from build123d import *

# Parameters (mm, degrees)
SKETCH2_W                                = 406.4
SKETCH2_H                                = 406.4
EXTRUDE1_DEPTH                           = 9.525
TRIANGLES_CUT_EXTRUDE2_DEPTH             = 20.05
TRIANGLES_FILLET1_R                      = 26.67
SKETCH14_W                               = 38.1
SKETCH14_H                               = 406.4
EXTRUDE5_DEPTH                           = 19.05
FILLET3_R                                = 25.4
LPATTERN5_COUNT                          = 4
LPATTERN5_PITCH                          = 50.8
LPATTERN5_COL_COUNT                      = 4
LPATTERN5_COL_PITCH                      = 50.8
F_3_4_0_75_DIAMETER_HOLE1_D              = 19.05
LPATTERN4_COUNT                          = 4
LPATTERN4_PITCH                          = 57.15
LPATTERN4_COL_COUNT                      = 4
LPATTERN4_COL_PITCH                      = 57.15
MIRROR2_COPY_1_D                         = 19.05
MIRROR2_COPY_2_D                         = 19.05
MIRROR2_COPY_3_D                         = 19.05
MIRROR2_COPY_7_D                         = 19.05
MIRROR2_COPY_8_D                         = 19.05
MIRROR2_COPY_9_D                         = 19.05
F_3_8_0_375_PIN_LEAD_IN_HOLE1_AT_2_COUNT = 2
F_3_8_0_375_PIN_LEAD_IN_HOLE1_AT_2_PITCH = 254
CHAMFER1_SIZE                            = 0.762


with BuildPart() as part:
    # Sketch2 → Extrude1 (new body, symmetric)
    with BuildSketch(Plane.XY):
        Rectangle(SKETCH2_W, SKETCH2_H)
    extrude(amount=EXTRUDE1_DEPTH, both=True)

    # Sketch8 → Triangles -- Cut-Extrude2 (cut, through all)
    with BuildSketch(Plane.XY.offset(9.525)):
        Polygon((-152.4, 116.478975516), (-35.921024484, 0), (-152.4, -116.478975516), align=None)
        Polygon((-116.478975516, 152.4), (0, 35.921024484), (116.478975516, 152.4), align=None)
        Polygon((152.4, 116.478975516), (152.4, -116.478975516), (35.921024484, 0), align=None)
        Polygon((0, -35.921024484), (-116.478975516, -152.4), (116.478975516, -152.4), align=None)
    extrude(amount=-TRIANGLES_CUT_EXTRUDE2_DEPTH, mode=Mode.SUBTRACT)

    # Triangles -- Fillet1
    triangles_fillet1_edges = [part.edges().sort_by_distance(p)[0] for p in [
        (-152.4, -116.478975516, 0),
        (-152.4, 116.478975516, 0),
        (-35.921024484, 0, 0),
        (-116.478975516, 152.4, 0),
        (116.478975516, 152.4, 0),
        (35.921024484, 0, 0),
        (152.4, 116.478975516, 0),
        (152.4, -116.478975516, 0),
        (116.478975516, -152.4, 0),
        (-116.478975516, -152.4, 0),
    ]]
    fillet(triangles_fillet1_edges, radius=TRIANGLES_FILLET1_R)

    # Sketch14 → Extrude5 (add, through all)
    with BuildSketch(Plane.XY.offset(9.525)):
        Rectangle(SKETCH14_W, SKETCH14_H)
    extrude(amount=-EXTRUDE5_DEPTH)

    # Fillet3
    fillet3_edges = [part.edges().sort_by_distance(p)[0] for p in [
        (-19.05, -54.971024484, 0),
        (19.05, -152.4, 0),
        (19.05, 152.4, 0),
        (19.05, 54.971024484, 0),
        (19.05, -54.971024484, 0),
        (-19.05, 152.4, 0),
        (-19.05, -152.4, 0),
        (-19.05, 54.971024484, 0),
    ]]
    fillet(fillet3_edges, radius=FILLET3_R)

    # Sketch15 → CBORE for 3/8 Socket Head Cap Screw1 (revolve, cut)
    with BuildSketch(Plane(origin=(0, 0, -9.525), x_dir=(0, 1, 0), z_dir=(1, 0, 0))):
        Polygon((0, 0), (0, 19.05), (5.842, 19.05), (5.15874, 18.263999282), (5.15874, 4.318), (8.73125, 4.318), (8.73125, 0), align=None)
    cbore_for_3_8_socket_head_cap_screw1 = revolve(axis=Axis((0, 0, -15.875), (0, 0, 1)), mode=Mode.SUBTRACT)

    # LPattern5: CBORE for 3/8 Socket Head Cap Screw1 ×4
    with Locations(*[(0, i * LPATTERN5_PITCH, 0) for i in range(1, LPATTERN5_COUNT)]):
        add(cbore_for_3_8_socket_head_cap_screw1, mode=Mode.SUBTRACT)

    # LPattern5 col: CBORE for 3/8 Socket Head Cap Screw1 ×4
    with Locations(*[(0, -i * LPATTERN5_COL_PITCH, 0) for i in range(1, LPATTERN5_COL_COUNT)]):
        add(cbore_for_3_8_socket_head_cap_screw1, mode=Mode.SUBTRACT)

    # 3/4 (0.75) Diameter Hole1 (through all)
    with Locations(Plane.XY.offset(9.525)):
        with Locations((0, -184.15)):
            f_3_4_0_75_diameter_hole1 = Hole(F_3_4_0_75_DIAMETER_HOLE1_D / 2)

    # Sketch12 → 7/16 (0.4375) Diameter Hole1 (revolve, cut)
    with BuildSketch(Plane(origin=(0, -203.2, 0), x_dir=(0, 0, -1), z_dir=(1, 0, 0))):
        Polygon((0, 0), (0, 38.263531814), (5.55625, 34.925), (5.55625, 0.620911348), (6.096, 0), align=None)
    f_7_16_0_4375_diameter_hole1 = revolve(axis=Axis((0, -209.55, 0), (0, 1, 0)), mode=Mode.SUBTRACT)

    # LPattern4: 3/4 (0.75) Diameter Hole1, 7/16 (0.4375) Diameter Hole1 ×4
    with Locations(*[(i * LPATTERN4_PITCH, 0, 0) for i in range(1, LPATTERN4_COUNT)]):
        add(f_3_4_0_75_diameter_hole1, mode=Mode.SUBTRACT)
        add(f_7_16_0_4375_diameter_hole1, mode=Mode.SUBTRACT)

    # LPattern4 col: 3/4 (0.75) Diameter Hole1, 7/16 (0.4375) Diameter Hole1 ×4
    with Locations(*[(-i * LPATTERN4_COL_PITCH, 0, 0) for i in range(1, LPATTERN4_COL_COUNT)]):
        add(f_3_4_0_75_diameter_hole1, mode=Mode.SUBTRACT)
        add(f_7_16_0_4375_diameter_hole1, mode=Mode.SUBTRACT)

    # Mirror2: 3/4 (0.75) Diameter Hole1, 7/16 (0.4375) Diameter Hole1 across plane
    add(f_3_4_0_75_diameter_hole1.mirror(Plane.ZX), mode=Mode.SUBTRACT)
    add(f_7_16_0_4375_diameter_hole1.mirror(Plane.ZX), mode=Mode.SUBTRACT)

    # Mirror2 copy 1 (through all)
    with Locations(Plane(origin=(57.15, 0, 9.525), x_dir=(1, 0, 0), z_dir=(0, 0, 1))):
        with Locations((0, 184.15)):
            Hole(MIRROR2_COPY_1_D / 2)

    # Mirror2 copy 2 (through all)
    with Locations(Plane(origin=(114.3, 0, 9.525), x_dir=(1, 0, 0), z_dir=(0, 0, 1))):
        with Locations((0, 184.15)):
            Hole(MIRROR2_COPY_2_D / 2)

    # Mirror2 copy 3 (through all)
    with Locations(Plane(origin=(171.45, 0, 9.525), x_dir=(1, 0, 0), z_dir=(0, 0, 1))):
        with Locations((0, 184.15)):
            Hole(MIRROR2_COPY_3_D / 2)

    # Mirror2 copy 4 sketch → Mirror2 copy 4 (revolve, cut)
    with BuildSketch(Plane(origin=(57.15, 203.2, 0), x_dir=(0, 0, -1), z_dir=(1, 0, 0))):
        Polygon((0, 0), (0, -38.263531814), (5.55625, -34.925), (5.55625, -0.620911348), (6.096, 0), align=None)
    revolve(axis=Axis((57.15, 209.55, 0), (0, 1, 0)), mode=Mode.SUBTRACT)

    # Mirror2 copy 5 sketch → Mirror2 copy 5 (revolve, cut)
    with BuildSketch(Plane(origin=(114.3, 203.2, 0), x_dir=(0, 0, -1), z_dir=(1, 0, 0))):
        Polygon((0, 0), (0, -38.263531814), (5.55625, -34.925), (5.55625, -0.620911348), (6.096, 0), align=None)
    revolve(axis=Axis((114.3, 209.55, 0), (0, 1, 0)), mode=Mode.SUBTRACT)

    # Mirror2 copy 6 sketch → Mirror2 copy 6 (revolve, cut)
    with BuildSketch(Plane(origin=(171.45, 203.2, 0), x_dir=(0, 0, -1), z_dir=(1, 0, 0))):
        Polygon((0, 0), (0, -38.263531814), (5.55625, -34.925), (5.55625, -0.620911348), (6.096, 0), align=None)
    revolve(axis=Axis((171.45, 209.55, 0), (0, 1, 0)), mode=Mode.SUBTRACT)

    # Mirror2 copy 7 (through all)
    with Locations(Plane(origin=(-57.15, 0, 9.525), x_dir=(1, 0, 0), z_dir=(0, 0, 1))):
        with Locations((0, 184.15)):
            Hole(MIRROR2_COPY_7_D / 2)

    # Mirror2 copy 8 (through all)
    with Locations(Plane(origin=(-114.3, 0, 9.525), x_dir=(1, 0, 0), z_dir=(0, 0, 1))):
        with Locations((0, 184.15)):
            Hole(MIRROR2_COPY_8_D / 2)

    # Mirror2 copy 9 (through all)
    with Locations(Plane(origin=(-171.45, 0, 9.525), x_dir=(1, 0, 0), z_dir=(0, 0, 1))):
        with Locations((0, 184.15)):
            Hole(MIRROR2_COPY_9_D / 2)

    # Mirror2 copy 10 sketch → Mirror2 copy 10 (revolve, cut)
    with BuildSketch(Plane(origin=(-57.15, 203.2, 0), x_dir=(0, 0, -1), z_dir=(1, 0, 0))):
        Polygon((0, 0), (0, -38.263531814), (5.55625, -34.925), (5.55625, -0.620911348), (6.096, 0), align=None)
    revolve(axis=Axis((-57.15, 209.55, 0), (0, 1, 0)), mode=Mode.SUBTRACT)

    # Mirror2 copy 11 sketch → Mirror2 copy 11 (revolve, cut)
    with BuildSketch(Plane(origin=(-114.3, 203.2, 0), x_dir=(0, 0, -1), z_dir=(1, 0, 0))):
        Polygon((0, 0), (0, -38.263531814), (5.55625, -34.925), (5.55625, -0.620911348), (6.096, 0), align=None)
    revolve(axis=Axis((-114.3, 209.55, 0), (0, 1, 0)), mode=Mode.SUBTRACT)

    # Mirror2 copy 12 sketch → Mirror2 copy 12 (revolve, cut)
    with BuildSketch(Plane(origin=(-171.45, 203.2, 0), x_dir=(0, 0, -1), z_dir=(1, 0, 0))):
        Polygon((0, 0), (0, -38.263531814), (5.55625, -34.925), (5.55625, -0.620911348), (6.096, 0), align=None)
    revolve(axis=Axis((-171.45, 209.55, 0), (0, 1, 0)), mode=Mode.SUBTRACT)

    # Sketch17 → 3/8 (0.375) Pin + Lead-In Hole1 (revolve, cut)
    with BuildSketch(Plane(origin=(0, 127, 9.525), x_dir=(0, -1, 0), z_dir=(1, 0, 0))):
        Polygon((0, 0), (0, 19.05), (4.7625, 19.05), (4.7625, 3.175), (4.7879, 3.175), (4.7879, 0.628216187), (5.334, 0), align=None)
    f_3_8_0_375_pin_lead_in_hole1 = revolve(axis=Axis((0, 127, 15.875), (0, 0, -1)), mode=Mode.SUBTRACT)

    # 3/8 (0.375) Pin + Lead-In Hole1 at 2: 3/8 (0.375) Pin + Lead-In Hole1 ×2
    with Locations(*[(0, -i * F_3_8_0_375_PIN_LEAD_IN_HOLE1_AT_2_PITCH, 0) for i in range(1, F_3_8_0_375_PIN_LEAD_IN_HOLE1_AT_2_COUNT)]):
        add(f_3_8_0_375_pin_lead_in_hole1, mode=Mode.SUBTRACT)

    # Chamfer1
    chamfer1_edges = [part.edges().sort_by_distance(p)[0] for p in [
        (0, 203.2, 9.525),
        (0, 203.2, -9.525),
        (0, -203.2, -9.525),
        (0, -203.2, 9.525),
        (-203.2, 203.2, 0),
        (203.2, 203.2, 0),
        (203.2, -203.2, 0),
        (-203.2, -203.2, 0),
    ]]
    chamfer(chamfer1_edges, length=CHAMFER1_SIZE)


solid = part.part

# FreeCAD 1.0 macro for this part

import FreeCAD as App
import Part
import Sketcher

V = App.Vector
Q = App.Units.Quantity


def edges_at(feature, points):
    """Names of the edges that pass closest to the given points."""
    edges = feature.Shape.Edges
    near = lambda p: min(range(len(edges)), key=lambda i: edges[i].distToShape(Part.Vertex(*p))[0])
    return sorted({f"Edge{near(p) + 1}" for p in points})


def add_polygon(sketch, points):
    """Adds a closed chain of lines whose ends are joined by coincident constraints."""
    first, n = sketch.GeometryCount, len(points)
    for a, b in zip(points, points[1:] + points[:1]):
        sketch.addGeometry(Part.LineSegment(App.Vector(*a, 0), App.Vector(*b, 0)), False)
    for i in range(n):
        sketch.addConstraint(Sketcher.Constraint("Coincident", first + i, 2, first + (i + 1) % n, 1))

doc = App.newDocument("Part")
body = doc.addObject("PartDesign::Body", "Body")

sketch1 = body.newObject("Sketcher::SketchObject", "Sketch")
sketch1.AttachmentSupport = (doc.getObject("XY_Plane"), [""])
sketch1.MapMode = "FlatFace"
add_polygon(sketch1, [(-203, 203), (-203, -203), (203, -203), (203, 203)])
sketch1.addConstraint(Sketcher.Constraint("Vertical", 0))
sketch1.addConstraint(Sketcher.Constraint("Horizontal", 1))
sketch1.addConstraint(Sketcher.Constraint("Vertical", 2))
sketch1.addConstraint(Sketcher.Constraint("Horizontal", 3))
sketch1.addConstraint(Sketcher.Constraint("Symmetric", 0, 2, 2, 2, -1, 1))
sketch1.addConstraint(Sketcher.Constraint("Equal", 3, 0))
sketch1.addConstraint(Sketcher.Constraint("DistanceX", 1, 1, 1, 2, Q("16 in")))
pad1 = body.newObject("PartDesign::Pad", "Pad")
pad1.Profile = sketch1
pad1.Length = Q("0.75 in")
pad1.Midplane = True

sketch2 = body.newObject("Sketcher::SketchObject", "Sketch001")
sketch2.AttachmentSupport = (doc.getObject("XY_Plane"), [""])
sketch2.MapMode = "FlatFace"
sketch2.AttachmentOffset = App.Placement(V(0, 0, 0.375 * 25.4), App.Rotation())
add_polygon(sketch2, [(-36, 0), (-152, 116), (-152, -116)])
add_polygon(sketch2, [(-116, 152), (0, 36), (116, 152)])
add_polygon(sketch2, [(152, -116), (152, 116), (36, 0)])
add_polygon(sketch2, [(0, -36), (-116, -152), (116, -152)])
sketch2.addConstraint(Sketcher.Constraint("Vertical", 1))
sketch2.addConstraint(Sketcher.Constraint("Horizontal", 5))
sketch2.addConstraint(Sketcher.Constraint("Vertical", 6))
sketch2.addConstraint(Sketcher.Constraint("Horizontal", 10))
sketch2.addConstraint(Sketcher.Constraint("Symmetric", 1, 2, 6, 2, -1, 1))
sketch2.addConstraint(Sketcher.Constraint("Symmetric", 2, 2, 7, 2, -1, 1))
sketch2.addConstraint(Sketcher.Constraint("Symmetric", 4, 2, 9, 2, -1, 1))
sketch2.addConstraint(Sketcher.Constraint("Symmetric", 3, 2, 11, 2, -1, 1))
sketch2.addConstraint(Sketcher.Constraint("PointOnObject", 2, 2, -1))
sketch2.addConstraint(Sketcher.Constraint("PointOnObject", 3, 2, -2))
sketch2.addConstraint(Sketcher.Constraint("Perpendicular", 0, 2))
sketch2.addConstraint(Sketcher.Constraint("Perpendicular", 2, 3))
sketch2.addConstraint(Sketcher.Constraint("Perpendicular", 3, 4))
sketch2.addConstraint(Sketcher.Constraint("Perpendicular", 7, 8))
sketch2.addConstraint(Sketcher.Constraint("Perpendicular", 9, 11))
sketch2.addConstraint(Sketcher.Constraint("Horizontal", 0, 2, 6, 2))
sketch2.addConstraint(Sketcher.Constraint("Equal", 10, 1))
sketch2.addConstraint(Sketcher.Constraint("DistanceX", 0, 2, -1, 1, Q("6 in")))
sketch2.addConstraint(Sketcher.Constraint("DistanceY", -1, 1, 4, 2, Q("6 in")))
sketch2.addConstraint(Sketcher.Constraint("DistanceX", 5, 2, 5, 1, Q("232.957951 mm")))
pocket1 = body.newObject("PartDesign::Pocket", "Pocket")
pocket1.Profile = sketch2
pocket1.Type = "ThroughAll"
doc.recompute()

fillet = body.newObject("PartDesign::Fillet", "Fillet")
fillet.Base = (pocket1, edges_at(pocket1, [
    (-152.4, -116.479, 0),
    (-152.4, 116.479, 0),
    (-35.921, 0, 0),
    (-116.479, 152.4, 0),
    (116.479, 152.4, 0),
    (35.921, 0, 0),
    (152.4, 116.479, 0),
    (152.4, -116.479, 0),
    (116.479, -152.4, 0),
    (-116.479, -152.4, 0),
]))
fillet.Radius = Q("1.05 in")

sketch3 = body.newObject("Sketcher::SketchObject", "Sketch002")
sketch3.AttachmentSupport = (doc.getObject("XY_Plane"), [""])
sketch3.MapMode = "FlatFace"
sketch3.AttachmentOffset = App.Placement(V(0, 0, 0.375 * 25.4), App.Rotation())
add_polygon(sketch3, [(-19, 203), (-19, -203), (19, -203), (19, 203)])
sketch3.addConstraint(Sketcher.Constraint("Vertical", 0))
sketch3.addConstraint(Sketcher.Constraint("Horizontal", 1))
sketch3.addConstraint(Sketcher.Constraint("Vertical", 2))
sketch3.addConstraint(Sketcher.Constraint("Horizontal", 3))
sketch3.addConstraint(Sketcher.Constraint("Symmetric", 0, 2, 2, 2, -1, 1))
sketch3.addConstraint(Sketcher.Constraint("DistanceY", 0, 2, 0, 1, Q("16 in")))
sketch3.addConstraint(Sketcher.Constraint("DistanceX", 1, 1, 1, 2, Q("1.5 in")))
pad2 = body.newObject("PartDesign::Pad", "Pad001")
pad2.Profile = sketch3
pad2.Type = "UpToLast"
pad2.Reversed = True
doc.recompute()

fillet2 = body.newObject("PartDesign::Fillet", "Fillet001")
fillet2.Base = (pad2, edges_at(pad2, [
    (-19.05, -54.971, 0),
    (19.05, -152.4, 0),
    (19.05, 152.4, 0),
    (19.05, 54.971, 0),
    (19.05, -54.971, 0),
    (-19.05, 152.4, 0),
    (-19.05, -152.4, 0),
    (-19.05, 54.971, 0),
]))
fillet2.Radius = Q("1 in")

sketch4 = body.newObject("Sketcher::SketchObject", "Sketch003")
sketch4.AttachmentSupport = (doc.getObject("YZ_Plane"), [""])
sketch4.MapMode = "FlatFace"
add_polygon(sketch4, [(0, 9.5), (0, -9.5), (8.7, -9.5), (8.7, -5.2), (5.2, -5.2), (5.2, 8.7), (5.8, 9.5)])
sketch4.addConstraint(Sketcher.Constraint("Vertical", 0))
sketch4.addConstraint(Sketcher.Constraint("Horizontal", 1))
sketch4.addConstraint(Sketcher.Constraint("Vertical", 2))
sketch4.addConstraint(Sketcher.Constraint("Horizontal", 3))
sketch4.addConstraint(Sketcher.Constraint("Vertical", 4))
sketch4.addConstraint(Sketcher.Constraint("Horizontal", 6))
sketch4.addConstraint(Sketcher.Constraint("Symmetric", 0, 2, 6, 2, -1, 1))
sketch4.addConstraint(Sketcher.Constraint("Angle", 5, Q("49 deg")))
sketch4.addConstraint(Sketcher.Constraint("DistanceX", 6, 2, 6, 1, Q("0.23 in")))
sketch4.addConstraint(Sketcher.Constraint("DistanceY", 0, 2, 0, 1, Q("0.75 in")))
sketch4.addConstraint(Sketcher.Constraint("DistanceY", 2, 1, 2, 2, Q("0.17 in")))
sketch4.addConstraint(Sketcher.Constraint("DistanceX", 1, 1, 1, 2, Q("0.34375 in")))
sketch4.addConstraint(Sketcher.Constraint("DistanceY", 4, 1, 4, 2, Q("13.945999 mm")))
groove = body.newObject("PartDesign::Groove", "Groove")
groove.Profile = sketch4
groove.ReferenceAxis = (sketch4, ["V_Axis"])
groove.Angle = 360
doc.recompute()

linearpattern = body.newObject("PartDesign::LinearPattern", "LinearPattern")
linearpattern.Originals = [groove]
linearpattern.Direction = (doc.getObject("Y_Axis"), [""])
linearpattern.Mode = "offset"
linearpattern.Offset = Q("2 in")
linearpattern.Occurrences = 4
body.Tip = linearpattern
doc.recompute()

linearpattern2 = body.newObject("PartDesign::LinearPattern", "LinearPattern001")
linearpattern2.Originals = [groove]
linearpattern2.Direction = (doc.getObject("Y_Axis"), [""])
linearpattern2.Mode = "offset"
linearpattern2.Offset = Q("2 in")
linearpattern2.Occurrences = 4
linearpattern2.Reversed = True
body.Tip = linearpattern2

sketch5 = body.newObject("Sketcher::SketchObject", "Sketch004")
sketch5.AttachmentSupport = (doc.getObject("XY_Plane"), [""])
sketch5.MapMode = "FlatFace"
sketch5.AttachmentOffset = App.Placement(V(0, 0, 0.375 * 25.4), App.Rotation())
sketch5.addGeometry(Part.Circle(V(0, -184, 0), V(0, 0, 1), 10), False)
sketch5.addConstraint(Sketcher.Constraint("PointOnObject", 0, 3, -2))
sketch5.addConstraint(Sketcher.Constraint("Diameter", 0, Q("0.75 in")))
sketch5.addConstraint(Sketcher.Constraint("DistanceY", 0, 3, -1, 1, Q("7.25 in")))
doc.recompute()
hole = body.newObject("PartDesign::Hole", "Hole")
hole.Profile = sketch5
hole.ThreadType = "None"
hole.Diameter = Q("0.75 in")
hole.DepthType = "ThroughAll"

sketch6 = body.newObject("Sketcher::SketchObject", "Sketch005")
sketch6.AttachmentSupport = (doc.getObject("YZ_Plane"), [""])
sketch6.MapMode = "FlatFace"
add_polygon(sketch6, [(-164.9, 0), (-203.2, 0), (-203.2, -6.1), (-202.6, -5.6), (-168.3, -5.6)])
sketch6.addConstraint(Sketcher.Constraint("Horizontal", 0))
sketch6.addConstraint(Sketcher.Constraint("Vertical", 1))
sketch6.addConstraint(Sketcher.Constraint("Horizontal", 3))
sketch6.addConstraint(Sketcher.Constraint("PointOnObject", 0, 2, -1))
sketch6.addConstraint(Sketcher.Constraint("DistanceX", 0, 2, -1, 1, Q("8 in")))
sketch6.addConstraint(Sketcher.Constraint("Angle", 2, Q("41 deg")))
sketch6.addConstraint(Sketcher.Constraint("Angle", 4, Q("59 deg")))
sketch6.addConstraint(Sketcher.Constraint("DistanceY", 1, 2, 1, 1, Q("0.24 in")))
sketch6.addConstraint(Sketcher.Constraint("DistanceY", 2, 2, -1, 1, Q("0.21875 in")))
sketch6.addConstraint(Sketcher.Constraint("DistanceX", 3, 2, -1, 1, Q("6.625 in")))
groove2 = body.newObject("PartDesign::Groove", "Groove001")
groove2.Profile = sketch6
groove2.ReferenceAxis = (sketch6, ["H_Axis"])
groove2.Angle = 360
doc.recompute()

linearpattern3 = body.newObject("PartDesign::LinearPattern", "LinearPattern002")
linearpattern3.Originals = [hole, groove2]
linearpattern3.Direction = (doc.getObject("X_Axis"), [""])
linearpattern3.Mode = "offset"
linearpattern3.Offset = Q("2.25 in")
linearpattern3.Occurrences = 4
body.Tip = linearpattern3
doc.recompute()

linearpattern4 = body.newObject("PartDesign::LinearPattern", "LinearPattern003")
linearpattern4.Originals = [hole, groove2]
linearpattern4.Direction = (doc.getObject("X_Axis"), [""])
linearpattern4.Mode = "offset"
linearpattern4.Offset = Q("2.25 in")
linearpattern4.Occurrences = 4
linearpattern4.Reversed = True
body.Tip = linearpattern4
doc.recompute()

mirrored = body.newObject("PartDesign::Mirrored", "Mirrored")
mirrored.Originals = [hole, groove2]
mirrored.MirrorPlane = (doc.getObject("XZ_Plane"), [""])
body.Tip = mirrored

sketch7 = body.newObject("Sketcher::SketchObject", "Sketch006")
sketch7.AttachmentSupport = (doc.getObject("XY_Plane"), [""])
sketch7.MapMode = "FlatFace"
sketch7.AttachmentOffset = App.Placement(V(0, 0, 0.375 * 25.4), App.Rotation())
sketch7.addGeometry(Part.Circle(V(57, 184, 0), V(0, 0, 1), 10), False)
sketch7.addConstraint(Sketcher.Constraint("Diameter", 0, Q("0.75 in")))
sketch7.addConstraint(Sketcher.Constraint("DistanceX", -1, 1, 0, 3, Q("2.25 in")))
sketch7.addConstraint(Sketcher.Constraint("DistanceY", -1, 1, 0, 3, Q("7.25 in")))
doc.recompute()
hole2 = body.newObject("PartDesign::Hole", "Hole001")
hole2.Profile = sketch7
hole2.ThreadType = "None"
hole2.Diameter = Q("0.75 in")
hole2.DepthType = "ThroughAll"

sketch8 = body.newObject("Sketcher::SketchObject", "Sketch007")
sketch8.AttachmentSupport = (doc.getObject("XY_Plane"), [""])
sketch8.MapMode = "FlatFace"
sketch8.AttachmentOffset = App.Placement(V(0, 0, 0.375 * 25.4), App.Rotation())
sketch8.addGeometry(Part.Circle(V(114, 184, 0), V(0, 0, 1), 10), False)
sketch8.addConstraint(Sketcher.Constraint("Diameter", 0, Q("0.75 in")))
sketch8.addConstraint(Sketcher.Constraint("DistanceX", -1, 1, 0, 3, Q("4.5 in")))
sketch8.addConstraint(Sketcher.Constraint("DistanceY", -1, 1, 0, 3, Q("7.25 in")))
doc.recompute()
hole3 = body.newObject("PartDesign::Hole", "Hole002")
hole3.Profile = sketch8
hole3.ThreadType = "None"
hole3.Diameter = Q("0.75 in")
hole3.DepthType = "ThroughAll"

sketch9 = body.newObject("Sketcher::SketchObject", "Sketch008")
sketch9.AttachmentSupport = (doc.getObject("XY_Plane"), [""])
sketch9.MapMode = "FlatFace"
sketch9.AttachmentOffset = App.Placement(V(0, 0, 0.375 * 25.4), App.Rotation())
sketch9.addGeometry(Part.Circle(V(171, 184, 0), V(0, 0, 1), 10), False)
sketch9.addConstraint(Sketcher.Constraint("Diameter", 0, Q("0.75 in")))
sketch9.addConstraint(Sketcher.Constraint("DistanceX", -1, 1, 0, 3, Q("6.75 in")))
sketch9.addConstraint(Sketcher.Constraint("DistanceY", -1, 1, 0, 3, Q("7.25 in")))
doc.recompute()
hole4 = body.newObject("PartDesign::Hole", "Hole003")
hole4.Profile = sketch9
hole4.ThreadType = "None"
hole4.Diameter = Q("0.75 in")
hole4.DepthType = "ThroughAll"

sketch10 = body.newObject("Sketcher::SketchObject", "Sketch009")
sketch10.AttachmentSupport = (doc.getObject("YZ_Plane"), [""])
sketch10.MapMode = "FlatFace"
sketch10.AttachmentOffset = App.Placement(V(0, 0, 2.25 * 25.4), App.Rotation())
add_polygon(sketch10, [(203.2, 0), (164.9, 0), (168.3, -5.6), (202.6, -5.6), (203.2, -6.1)])
sketch10.addConstraint(Sketcher.Constraint("Horizontal", 0))
sketch10.addConstraint(Sketcher.Constraint("Horizontal", 2))
sketch10.addConstraint(Sketcher.Constraint("Vertical", 4))
sketch10.addConstraint(Sketcher.Constraint("PointOnObject", 0, 2, -1))
sketch10.addConstraint(Sketcher.Constraint("DistanceX", -1, 1, 3, 2, Q("8 in")))
sketch10.addConstraint(Sketcher.Constraint("Angle", 1, Q("-59 deg")))
sketch10.addConstraint(Sketcher.Constraint("Angle", 3, Q("-41 deg")))
sketch10.addConstraint(Sketcher.Constraint("DistanceY", 4, 1, 4, 2, Q("0.24 in")))
sketch10.addConstraint(Sketcher.Constraint("DistanceX", -1, 1, 1, 2, Q("6.625 in")))
sketch10.addConstraint(Sketcher.Constraint("DistanceY", 1, 2, -1, 1, Q("0.21875 in")))
groove3 = body.newObject("PartDesign::Groove", "Groove002")
groove3.Profile = sketch10
groove3.ReferenceAxis = (sketch10, ["H_Axis"])
groove3.Angle = 360

sketch11 = body.newObject("Sketcher::SketchObject", "Sketch010")
sketch11.AttachmentSupport = (doc.getObject("YZ_Plane"), [""])
sketch11.MapMode = "FlatFace"
sketch11.AttachmentOffset = App.Placement(V(0, 0, 4.5 * 25.4), App.Rotation())
add_polygon(sketch11, [(203.2, 0), (164.9, 0), (168.3, -5.6), (202.6, -5.6), (203.2, -6.1)])
sketch11.addConstraint(Sketcher.Constraint("Horizontal", 0))
sketch11.addConstraint(Sketcher.Constraint("Horizontal", 2))
sketch11.addConstraint(Sketcher.Constraint("Vertical", 4))
sketch11.addConstraint(Sketcher.Constraint("PointOnObject", 0, 2, -1))
sketch11.addConstraint(Sketcher.Constraint("DistanceX", -1, 1, 3, 2, Q("8 in")))
sketch11.addConstraint(Sketcher.Constraint("Angle", 1, Q("-59 deg")))
sketch11.addConstraint(Sketcher.Constraint("Angle", 3, Q("-41 deg")))
sketch11.addConstraint(Sketcher.Constraint("DistanceY", 4, 1, 4, 2, Q("0.24 in")))
sketch11.addConstraint(Sketcher.Constraint("DistanceX", -1, 1, 1, 2, Q("6.625 in")))
sketch11.addConstraint(Sketcher.Constraint("DistanceY", 1, 2, -1, 1, Q("0.21875 in")))
groove4 = body.newObject("PartDesign::Groove", "Groove003")
groove4.Profile = sketch11
groove4.ReferenceAxis = (sketch11, ["H_Axis"])
groove4.Angle = 360

sketch12 = body.newObject("Sketcher::SketchObject", "Sketch011")
sketch12.AttachmentSupport = (doc.getObject("YZ_Plane"), [""])
sketch12.MapMode = "FlatFace"
sketch12.AttachmentOffset = App.Placement(V(0, 0, 6.75 * 25.4), App.Rotation())
add_polygon(sketch12, [(203.2, 0), (164.9, 0), (168.3, -5.6), (202.6, -5.6), (203.2, -6.1)])
sketch12.addConstraint(Sketcher.Constraint("Horizontal", 0))
sketch12.addConstraint(Sketcher.Constraint("Horizontal", 2))
sketch12.addConstraint(Sketcher.Constraint("Vertical", 4))
sketch12.addConstraint(Sketcher.Constraint("PointOnObject", 0, 2, -1))
sketch12.addConstraint(Sketcher.Constraint("DistanceX", -1, 1, 3, 2, Q("8 in")))
sketch12.addConstraint(Sketcher.Constraint("Angle", 1, Q("-59 deg")))
sketch12.addConstraint(Sketcher.Constraint("Angle", 3, Q("-41 deg")))
sketch12.addConstraint(Sketcher.Constraint("DistanceY", 4, 1, 4, 2, Q("0.24 in")))
sketch12.addConstraint(Sketcher.Constraint("DistanceX", -1, 1, 1, 2, Q("6.625 in")))
sketch12.addConstraint(Sketcher.Constraint("DistanceY", 1, 2, -1, 1, Q("0.21875 in")))
groove5 = body.newObject("PartDesign::Groove", "Groove004")
groove5.Profile = sketch12
groove5.ReferenceAxis = (sketch12, ["H_Axis"])
groove5.Angle = 360

sketch13 = body.newObject("Sketcher::SketchObject", "Sketch012")
sketch13.AttachmentSupport = (doc.getObject("XY_Plane"), [""])
sketch13.MapMode = "FlatFace"
sketch13.AttachmentOffset = App.Placement(V(0, 0, 0.375 * 25.4), App.Rotation())
sketch13.addGeometry(Part.Circle(V(-57, 184, 0), V(0, 0, 1), 10), False)
sketch13.addConstraint(Sketcher.Constraint("Diameter", 0, Q("0.75 in")))
sketch13.addConstraint(Sketcher.Constraint("DistanceX", 0, 3, -1, 1, Q("2.25 in")))
sketch13.addConstraint(Sketcher.Constraint("DistanceY", -1, 1, 0, 3, Q("7.25 in")))
doc.recompute()
hole5 = body.newObject("PartDesign::Hole", "Hole004")
hole5.Profile = sketch13
hole5.ThreadType = "None"
hole5.Diameter = Q("0.75 in")
hole5.DepthType = "ThroughAll"

sketch14 = body.newObject("Sketcher::SketchObject", "Sketch013")
sketch14.AttachmentSupport = (doc.getObject("XY_Plane"), [""])
sketch14.MapMode = "FlatFace"
sketch14.AttachmentOffset = App.Placement(V(0, 0, 0.375 * 25.4), App.Rotation())
sketch14.addGeometry(Part.Circle(V(-114, 184, 0), V(0, 0, 1), 10), False)
sketch14.addConstraint(Sketcher.Constraint("Diameter", 0, Q("0.75 in")))
sketch14.addConstraint(Sketcher.Constraint("DistanceX", 0, 3, -1, 1, Q("4.5 in")))
sketch14.addConstraint(Sketcher.Constraint("DistanceY", -1, 1, 0, 3, Q("7.25 in")))
doc.recompute()
hole6 = body.newObject("PartDesign::Hole", "Hole005")
hole6.Profile = sketch14
hole6.ThreadType = "None"
hole6.Diameter = Q("0.75 in")
hole6.DepthType = "ThroughAll"

sketch15 = body.newObject("Sketcher::SketchObject", "Sketch014")
sketch15.AttachmentSupport = (doc.getObject("XY_Plane"), [""])
sketch15.MapMode = "FlatFace"
sketch15.AttachmentOffset = App.Placement(V(0, 0, 0.375 * 25.4), App.Rotation())
sketch15.addGeometry(Part.Circle(V(-171, 184, 0), V(0, 0, 1), 10), False)
sketch15.addConstraint(Sketcher.Constraint("Diameter", 0, Q("0.75 in")))
sketch15.addConstraint(Sketcher.Constraint("DistanceX", 0, 3, -1, 1, Q("6.75 in")))
sketch15.addConstraint(Sketcher.Constraint("DistanceY", -1, 1, 0, 3, Q("7.25 in")))
doc.recompute()
hole7 = body.newObject("PartDesign::Hole", "Hole006")
hole7.Profile = sketch15
hole7.ThreadType = "None"
hole7.Diameter = Q("0.75 in")
hole7.DepthType = "ThroughAll"

sketch16 = body.newObject("Sketcher::SketchObject", "Sketch015")
sketch16.AttachmentSupport = (doc.getObject("YZ_Plane"), [""])
sketch16.MapMode = "FlatFace"
sketch16.AttachmentOffset = App.Placement(V(0, 0, -2.25 * 25.4), App.Rotation())
add_polygon(sketch16, [(203.2, 0), (164.9, 0), (168.3, -5.6), (202.6, -5.6), (203.2, -6.1)])
sketch16.addConstraint(Sketcher.Constraint("Horizontal", 0))
sketch16.addConstraint(Sketcher.Constraint("Horizontal", 2))
sketch16.addConstraint(Sketcher.Constraint("Vertical", 4))
sketch16.addConstraint(Sketcher.Constraint("PointOnObject", 0, 2, -1))
sketch16.addConstraint(Sketcher.Constraint("DistanceX", -1, 1, 3, 2, Q("8 in")))
sketch16.addConstraint(Sketcher.Constraint("Angle", 1, Q("-59 deg")))
sketch16.addConstraint(Sketcher.Constraint("Angle", 3, Q("-41 deg")))
sketch16.addConstraint(Sketcher.Constraint("DistanceY", 4, 1, 4, 2, Q("0.24 in")))
sketch16.addConstraint(Sketcher.Constraint("DistanceX", -1, 1, 1, 2, Q("6.625 in")))
sketch16.addConstraint(Sketcher.Constraint("DistanceY", 1, 2, -1, 1, Q("0.21875 in")))
groove6 = body.newObject("PartDesign::Groove", "Groove005")
groove6.Profile = sketch16
groove6.ReferenceAxis = (sketch16, ["H_Axis"])
groove6.Angle = 360

sketch17 = body.newObject("Sketcher::SketchObject", "Sketch016")
sketch17.AttachmentSupport = (doc.getObject("YZ_Plane"), [""])
sketch17.MapMode = "FlatFace"
sketch17.AttachmentOffset = App.Placement(V(0, 0, -4.5 * 25.4), App.Rotation())
add_polygon(sketch17, [(203.2, 0), (164.9, 0), (168.3, -5.6), (202.6, -5.6), (203.2, -6.1)])
sketch17.addConstraint(Sketcher.Constraint("Horizontal", 0))
sketch17.addConstraint(Sketcher.Constraint("Horizontal", 2))
sketch17.addConstraint(Sketcher.Constraint("Vertical", 4))
sketch17.addConstraint(Sketcher.Constraint("PointOnObject", 0, 2, -1))
sketch17.addConstraint(Sketcher.Constraint("DistanceX", -1, 1, 3, 2, Q("8 in")))
sketch17.addConstraint(Sketcher.Constraint("Angle", 1, Q("-59 deg")))
sketch17.addConstraint(Sketcher.Constraint("Angle", 3, Q("-41 deg")))
sketch17.addConstraint(Sketcher.Constraint("DistanceY", 4, 1, 4, 2, Q("0.24 in")))
sketch17.addConstraint(Sketcher.Constraint("DistanceX", -1, 1, 1, 2, Q("6.625 in")))
sketch17.addConstraint(Sketcher.Constraint("DistanceY", 1, 2, -1, 1, Q("0.21875 in")))
groove7 = body.newObject("PartDesign::Groove", "Groove006")
groove7.Profile = sketch17
groove7.ReferenceAxis = (sketch17, ["H_Axis"])
groove7.Angle = 360

sketch18 = body.newObject("Sketcher::SketchObject", "Sketch017")
sketch18.AttachmentSupport = (doc.getObject("YZ_Plane"), [""])
sketch18.MapMode = "FlatFace"
sketch18.AttachmentOffset = App.Placement(V(0, 0, -6.75 * 25.4), App.Rotation())
add_polygon(sketch18, [(203.2, 0), (164.9, 0), (168.3, -5.6), (202.6, -5.6), (203.2, -6.1)])
sketch18.addConstraint(Sketcher.Constraint("Horizontal", 0))
sketch18.addConstraint(Sketcher.Constraint("Horizontal", 2))
sketch18.addConstraint(Sketcher.Constraint("Vertical", 4))
sketch18.addConstraint(Sketcher.Constraint("PointOnObject", 0, 2, -1))
sketch18.addConstraint(Sketcher.Constraint("DistanceX", -1, 1, 3, 2, Q("8 in")))
sketch18.addConstraint(Sketcher.Constraint("Angle", 1, Q("-59 deg")))
sketch18.addConstraint(Sketcher.Constraint("Angle", 3, Q("-41 deg")))
sketch18.addConstraint(Sketcher.Constraint("DistanceY", 4, 1, 4, 2, Q("0.24 in")))
sketch18.addConstraint(Sketcher.Constraint("DistanceX", -1, 1, 1, 2, Q("6.625 in")))
sketch18.addConstraint(Sketcher.Constraint("DistanceY", 1, 2, -1, 1, Q("0.21875 in")))
groove8 = body.newObject("PartDesign::Groove", "Groove007")
groove8.Profile = sketch18
groove8.ReferenceAxis = (sketch18, ["H_Axis"])
groove8.Angle = 360

sketch19 = body.newObject("Sketcher::SketchObject", "Sketch018")
sketch19.AttachmentSupport = (doc.getObject("YZ_Plane"), [""])
sketch19.MapMode = "FlatFace"
add_polygon(sketch19, [(127, -9.525), (127, 9.525), (121.666, 9.525), (122.212, 8.897), (122.212, 6.35), (122.237, 6.35), (122.237, -9.525)])
sketch19.addGeometry(Part.LineSegment(V(127, 9.525, 0), V(127, -9.525, 0)), True)
sketch19.addConstraint(Sketcher.Constraint("Vertical", 0))
sketch19.addConstraint(Sketcher.Constraint("Horizontal", 1))
sketch19.addConstraint(Sketcher.Constraint("Vertical", 3))
sketch19.addConstraint(Sketcher.Constraint("Horizontal", 4))
sketch19.addConstraint(Sketcher.Constraint("Vertical", 5))
sketch19.addConstraint(Sketcher.Constraint("Horizontal", 6))
sketch19.addConstraint(Sketcher.Constraint("Vertical", 7))
sketch19.addConstraint(Sketcher.Constraint("Coincident", 7, 1, 0, 2))
sketch19.addConstraint(Sketcher.Constraint("Horizontal", 5, 2, 7, 2))
sketch19.addConstraint(Sketcher.Constraint("DistanceX", -1, 1, 0, 2, Q("5 in")))
sketch19.addConstraint(Sketcher.Constraint("Angle", 2, Q("-49 deg")))
sketch19.addConstraint(Sketcher.Constraint("DistanceX", 1, 2, 1, 1, Q("0.21 in")))
sketch19.addConstraint(Sketcher.Constraint("DistanceY", 0, 1, 0, 2, Q("0.75 in")))
sketch19.addConstraint(Sketcher.Constraint("DistanceX", 4, 1, 4, 2, Q("0.001 in")))
sketch19.addConstraint(Sketcher.Constraint("DistanceX", 6, 1, 6, 2, Q("0.1875 in")))
sketch19.addConstraint(Sketcher.Constraint("DistanceY", 5, 2, 5, 1, Q("0.625 in")))
sketch19.addConstraint(Sketcher.Constraint("DistanceY", -1, 1, 3, 2, Q("0.25 in")))
groove9 = body.newObject("PartDesign::Groove", "Groove008")
groove9.Profile = sketch19
groove9.ReferenceAxis = (sketch19, ["Axis0"])
groove9.Angle = 360
doc.recompute()

linearpattern5 = body.newObject("PartDesign::LinearPattern", "LinearPattern004")
linearpattern5.Originals = [groove9]
linearpattern5.Direction = (doc.getObject("Y_Axis"), [""])
linearpattern5.Mode = "offset"
linearpattern5.Offset = Q("10 in")
linearpattern5.Occurrences = 2
linearpattern5.Reversed = True
body.Tip = linearpattern5
doc.recompute()

chamfer = body.newObject("PartDesign::Chamfer", "Chamfer")
chamfer.Base = (linearpattern5, edges_at(linearpattern5, [
    (0, 203.2, 9.525),
    (0, 203.2, -9.525),
    (0, -203.2, -9.525),
    (0, -203.2, 9.525),
    (-203.2, 203.2, 0),
    (203.2, 203.2, 0),
    (203.2, -203.2, 0),
    (-203.2, -203.2, 0),
]))
chamfer.Size = Q("0.03 in")

doc.recompute()
